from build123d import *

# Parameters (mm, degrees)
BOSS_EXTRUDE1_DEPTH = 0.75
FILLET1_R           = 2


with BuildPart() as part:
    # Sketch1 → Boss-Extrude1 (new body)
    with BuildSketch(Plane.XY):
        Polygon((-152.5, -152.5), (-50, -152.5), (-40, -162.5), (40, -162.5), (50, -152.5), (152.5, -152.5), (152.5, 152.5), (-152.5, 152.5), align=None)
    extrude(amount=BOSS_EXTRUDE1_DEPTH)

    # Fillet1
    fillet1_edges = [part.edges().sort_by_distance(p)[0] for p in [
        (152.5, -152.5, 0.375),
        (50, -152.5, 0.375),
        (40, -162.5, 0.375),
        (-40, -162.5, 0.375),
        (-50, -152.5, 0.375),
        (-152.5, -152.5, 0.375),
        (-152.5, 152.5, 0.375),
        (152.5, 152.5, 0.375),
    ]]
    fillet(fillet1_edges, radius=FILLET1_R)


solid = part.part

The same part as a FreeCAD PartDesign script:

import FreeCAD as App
import Part
import Sketcher
from FreeCAD import Vector
Q = App.Units.Quantity


def edges_at(feature, points):
    """Names of the edges that pass closest to the given points."""
    edges = feature.Shape.Edges
    near = lambda p: min(range(len(edges)), key=lambda i: edges[i].distToShape(Part.Vertex(*p))[0])
    return sorted({f"Edge{near(p) + 1}" for p in points})


def add_polygon(sketch, points):
    """Adds a closed chain of lines whose ends are joined by coincident constraints."""
    first, n = sketch.GeometryCount, len(points)
    for a, b in zip(points, points[1:] + points[:1]):
        sketch.addGeometry(Part.LineSegment(App.Vector(*a, 0), App.Vector(*b, 0)), False)
    for i in range(n):
        sketch.addConstraint(Sketcher.Constraint("Coincident", first + i, 2, first + (i + 1) % n, 1))

doc = App.newDocument("Part")
params = doc.addObject("Spreadsheet::Sheet", "Params")
for row, (alias, value) in enumerate([
    ("sketch1_width", "80 mm"),
    ("sketch1_width2", "305 mm"),
    ("sketch1_width3", "102.5 mm"),
    ("pad1_length", "0.75 mm"),
    ("fillet_radius", "2 mm"),
], start=1):
    params.set(f"A{row}", alias)
    params.set(f"B{row}", "=" + value)
    params.setAlias(f"B{row}", alias)

body = doc.addObject("PartDesign::Body", "Body")

sketch1 = body.newObject("Sketcher::SketchObject", "Sketch")
sketch1.AttachmentSupport = (doc.getObject("XY_Plane"), [""])
sketch1.MapMode = "FlatFace"
add_polygon(sketch1, [(-152, -152), (-50, -152), (-40, -162), (40, -162), (50, -152), (152, -152), (152, 152), (-152, 152)])
sketch1.addConstraint(Sketcher.Constraint("Horizontal", 0))
sketch1.addConstraint(Sketcher.Constraint("Horizontal", 2))
sketch1.addConstraint(Sketcher.Constraint("Horizontal", 4))
sketch1.addConstraint(Sketcher.Constraint("Vertical", 5))
sketch1.addConstraint(Sketcher.Constraint("Horizontal", 6))
sketch1.addConstraint(Sketcher.Constraint("Vertical", 7))
sketch1.addConstraint(Sketcher.Constraint("Symmetric", 4, 2, 6, 2, -1, 1))
sketch1.addConstraint(Sketcher.Constraint("Symmetric", 0, 2, 3, 2, -2))
sketch1.addConstraint(Sketcher.Constraint("Perpendicular", 1, 3))
sketch1.addConstraint(Sketcher.Constraint("Equal", 6, 5))
sketch1.addConstraint(Sketcher.Constraint("Equal", 1, 3))
sketch1.addConstraint(Sketcher.Constraint("DistanceX", 2, 1, 2, 2, Q("80 mm")))
sketch1.addConstraint(Sketcher.Constraint("DistanceX", 6, 2, 6, 1, Q("305 mm")))
sketch1.addConstraint(Sketcher.Constraint("DistanceX", 0, 1, 0, 2, Q("102.5 mm")))
sketch1.setExpression("Constraints[19]", "Params.sketch1_width")
sketch1.setExpression("Constraints[20]", "Params.sketch1_width2")
sketch1.setExpression("Constraints[21]", "Params.sketch1_width3")
pad1 = body.newObject("PartDesign::Pad", "Pad")
pad1.Profile = sketch1
pad1.setExpression("Length", "Params.pad1_length")
doc.recompute()

fillet = body.newObject("PartDesign::Fillet", "Fillet")
fillet.Base = (pad1, edges_at(pad1, [
    (152.5, -152.5, 0.375),
    (50, -152.5, 0.375),
    (40, -162.5, 0.375),
    (-40, -162.5, 0.375),
    (-50, -152.5, 0.375),
    (-152.5, -152.5, 0.375),
    (-152.5, 152.5, 0.375),
    (152.5, 152.5, 0.375),
]))
fillet.setExpression("Radius", "Params.fillet_radius")

doc.recompute()
